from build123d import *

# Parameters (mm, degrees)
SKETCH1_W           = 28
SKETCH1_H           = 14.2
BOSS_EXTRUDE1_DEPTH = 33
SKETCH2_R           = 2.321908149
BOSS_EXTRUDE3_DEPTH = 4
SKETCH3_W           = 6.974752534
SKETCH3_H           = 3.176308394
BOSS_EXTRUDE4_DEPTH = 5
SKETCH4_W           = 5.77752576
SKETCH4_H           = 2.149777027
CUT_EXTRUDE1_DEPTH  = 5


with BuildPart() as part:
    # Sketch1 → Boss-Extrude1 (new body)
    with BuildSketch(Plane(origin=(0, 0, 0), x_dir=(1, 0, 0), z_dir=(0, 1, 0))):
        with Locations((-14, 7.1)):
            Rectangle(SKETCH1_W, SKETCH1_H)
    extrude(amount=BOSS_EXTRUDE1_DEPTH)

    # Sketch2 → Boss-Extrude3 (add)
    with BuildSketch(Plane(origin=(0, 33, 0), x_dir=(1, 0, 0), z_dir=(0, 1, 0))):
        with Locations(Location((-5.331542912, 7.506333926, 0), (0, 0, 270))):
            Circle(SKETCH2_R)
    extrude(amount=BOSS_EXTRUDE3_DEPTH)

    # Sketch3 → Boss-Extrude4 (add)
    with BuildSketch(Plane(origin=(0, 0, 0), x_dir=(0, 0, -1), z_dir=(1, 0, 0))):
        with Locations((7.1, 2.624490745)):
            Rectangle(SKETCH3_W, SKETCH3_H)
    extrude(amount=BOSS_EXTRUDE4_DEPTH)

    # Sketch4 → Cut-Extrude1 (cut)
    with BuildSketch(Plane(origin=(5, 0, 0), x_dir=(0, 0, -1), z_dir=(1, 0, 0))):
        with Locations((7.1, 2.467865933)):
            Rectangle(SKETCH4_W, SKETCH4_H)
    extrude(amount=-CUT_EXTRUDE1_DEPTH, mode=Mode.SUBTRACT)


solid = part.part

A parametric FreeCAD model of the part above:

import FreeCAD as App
import Part
import Sketcher

V = App.Vector
Q = App.Units.Quantity


def add_polygon(sketch, points):
    """Adds a closed chain of lines whose ends are joined by coincident constraints."""
    first, n = sketch.GeometryCount, len(points)
    for a, b in zip(points, points[1:] + points[:1]):
        sketch.addGeometry(Part.LineSegment(App.Vector(*a, 0), App.Vector(*b, 0)), False)
    for i in range(n):
        sketch.addConstraint(Sketcher.Constraint("Coincident", first + i, 2, first + (i + 1) % n, 1))

doc = App.newDocument("Part")
body = doc.addObject("PartDesign::Body", "Body")

# Sketch on XZ plane
sketch1 = body.newObject("Sketcher::SketchObject", "Sketch")
sketch1.AttachmentSupport = (doc.getObject("XZ_Plane"), [""])
sketch1.MapMode = "FlatFace"
add_polygon(sketch1, [(-28, -14), (-28, 0), (0, 0), (0, -14)])  # lines 0-3
sketch1.addConstraint(Sketcher.Constraint("Vertical", 0))
sketch1.addConstraint(Sketcher.Constraint("Horizontal", 1))
sketch1.addConstraint(Sketcher.Constraint("Vertical", 2))
sketch1.addConstraint(Sketcher.Constraint("Horizontal", 3))
sketch1.addConstraint(Sketcher.Constraint("Coincident", 1, 2, -1, 1))
sketch1.addConstraint(Sketcher.Constraint("DistanceX", 1, 1, 1, 2, Q("28 mm")))
sketch1.addConstraint(Sketcher.Constraint("DistanceY", 0, 1, 0, 2, Q("14.2 mm")))
pad1 = body.newObject("PartDesign::Pad", "Pad")
pad1.Profile = sketch1
pad1.Length = 33
pad1.Reversed = True

# Sketch on XZ plane
sketch2 = body.newObject("Sketcher::SketchObject", "Sketch001")
sketch2.AttachmentSupport = (doc.getObject("XZ_Plane"), [""])
sketch2.MapMode = "FlatFace"
sketch2.AttachmentOffset = App.Placement(V(0, 0, -33), App.Rotation())
sketch2.addGeometry(Part.Circle(V(-5.3, -7.5, 0), V(0, 0, 1), 2.3), False)
sketch2.addConstraint(Sketcher.Constraint("Diameter", 0, Q("4.643816 mm")))
sketch2.addConstraint(Sketcher.Constraint("DistanceX", 0, 3, -1, 1, Q("5.331543 mm")))
sketch2.addConstraint(Sketcher.Constraint("DistanceY", 0, 3, -1, 1, Q("7.506334 mm")))
pad2 = body.newObject("PartDesign::Pad", "Pad001")
pad2.Profile = sketch2
pad2.Length = 4
pad2.Reversed = True

# Sketch on YZ plane
sketch3 = body.newObject("Sketcher::SketchObject", "Sketch002")
sketch3.AttachmentSupport = (doc.getObject("YZ_Plane"), [""])
sketch3.MapMode = "FlatFace"
add_polygon(sketch3, [(4.2, -3.6), (1, -3.6), (1, -10.6), (4.2, -10.6)])  # lines 0-3
sketch3.addConstraint(Sketcher.Constraint("Horizontal", 0))
sketch3.addConstraint(Sketcher.Constraint("Vertical", 1))
sketch3.addConstraint(Sketcher.Constraint("Horizontal", 2))
sketch3.addConstraint(Sketcher.Constraint("Vertical", 3))
sketch3.addConstraint(Sketcher.Constraint("DistanceX", 0, 2, 0, 1, Q("3.176308 mm")))
sketch3.addConstraint(Sketcher.Constraint("DistanceY", 1, 2, 1, 1, Q("6.974753 mm")))
sketch3.addConstraint(Sketcher.Constraint("DistanceX", -1, 1, 0, 2, Q("1.036337 mm")))
sketch3.addConstraint(Sketcher.Constraint("DistanceY", 0, 2, -1, 1, Q("3.612624 mm")))
pad3 = body.newObject("PartDesign::Pad", "Pad002")
pad3.Profile = sketch3
pad3.Length = 5

# Sketch on YZ plane
sketch4 = body.newObject("Sketcher::SketchObject", "Sketch003")
sketch4.AttachmentSupport = (doc.getObject("YZ_Plane"), [""])
sketch4.MapMode = "FlatFace"
sketch4.AttachmentOffset = App.Placement(V(0, 0, 5), App.Rotation())
add_polygon(sketch4, [(3.5, -4.2), (1.4, -4.2), (1.4, -10), (3.5, -10)])  # lines 0-3
sketch4.addConstraint(Sketcher.Constraint("Horizontal", 0))
sketch4.addConstraint(Sketcher.Constraint("Vertical", 1))
sketch4.addConstraint(Sketcher.Constraint("Horizontal", 2))
sketch4.addConstraint(Sketcher.Constraint("Vertical", 3))
sketch4.addConstraint(Sketcher.Constraint("DistanceX", 0, 2, 0, 1, Q("2.149777 mm")))
sketch4.addConstraint(Sketcher.Constraint("DistanceY", 1, 2, 1, 1, Q("5.777526 mm")))
sketch4.addConstraint(Sketcher.Constraint("DistanceX", -1, 1, 0, 2, Q("1.392977 mm")))
sketch4.addConstraint(Sketcher.Constraint("DistanceY", 0, 2, -1, 1, Q("4.211237 mm")))
pocket1 = body.newObject("PartDesign::Pocket", "Pocket")
pocket1.Profile = sketch4
pocket1.Length = 5

doc.recompute()
